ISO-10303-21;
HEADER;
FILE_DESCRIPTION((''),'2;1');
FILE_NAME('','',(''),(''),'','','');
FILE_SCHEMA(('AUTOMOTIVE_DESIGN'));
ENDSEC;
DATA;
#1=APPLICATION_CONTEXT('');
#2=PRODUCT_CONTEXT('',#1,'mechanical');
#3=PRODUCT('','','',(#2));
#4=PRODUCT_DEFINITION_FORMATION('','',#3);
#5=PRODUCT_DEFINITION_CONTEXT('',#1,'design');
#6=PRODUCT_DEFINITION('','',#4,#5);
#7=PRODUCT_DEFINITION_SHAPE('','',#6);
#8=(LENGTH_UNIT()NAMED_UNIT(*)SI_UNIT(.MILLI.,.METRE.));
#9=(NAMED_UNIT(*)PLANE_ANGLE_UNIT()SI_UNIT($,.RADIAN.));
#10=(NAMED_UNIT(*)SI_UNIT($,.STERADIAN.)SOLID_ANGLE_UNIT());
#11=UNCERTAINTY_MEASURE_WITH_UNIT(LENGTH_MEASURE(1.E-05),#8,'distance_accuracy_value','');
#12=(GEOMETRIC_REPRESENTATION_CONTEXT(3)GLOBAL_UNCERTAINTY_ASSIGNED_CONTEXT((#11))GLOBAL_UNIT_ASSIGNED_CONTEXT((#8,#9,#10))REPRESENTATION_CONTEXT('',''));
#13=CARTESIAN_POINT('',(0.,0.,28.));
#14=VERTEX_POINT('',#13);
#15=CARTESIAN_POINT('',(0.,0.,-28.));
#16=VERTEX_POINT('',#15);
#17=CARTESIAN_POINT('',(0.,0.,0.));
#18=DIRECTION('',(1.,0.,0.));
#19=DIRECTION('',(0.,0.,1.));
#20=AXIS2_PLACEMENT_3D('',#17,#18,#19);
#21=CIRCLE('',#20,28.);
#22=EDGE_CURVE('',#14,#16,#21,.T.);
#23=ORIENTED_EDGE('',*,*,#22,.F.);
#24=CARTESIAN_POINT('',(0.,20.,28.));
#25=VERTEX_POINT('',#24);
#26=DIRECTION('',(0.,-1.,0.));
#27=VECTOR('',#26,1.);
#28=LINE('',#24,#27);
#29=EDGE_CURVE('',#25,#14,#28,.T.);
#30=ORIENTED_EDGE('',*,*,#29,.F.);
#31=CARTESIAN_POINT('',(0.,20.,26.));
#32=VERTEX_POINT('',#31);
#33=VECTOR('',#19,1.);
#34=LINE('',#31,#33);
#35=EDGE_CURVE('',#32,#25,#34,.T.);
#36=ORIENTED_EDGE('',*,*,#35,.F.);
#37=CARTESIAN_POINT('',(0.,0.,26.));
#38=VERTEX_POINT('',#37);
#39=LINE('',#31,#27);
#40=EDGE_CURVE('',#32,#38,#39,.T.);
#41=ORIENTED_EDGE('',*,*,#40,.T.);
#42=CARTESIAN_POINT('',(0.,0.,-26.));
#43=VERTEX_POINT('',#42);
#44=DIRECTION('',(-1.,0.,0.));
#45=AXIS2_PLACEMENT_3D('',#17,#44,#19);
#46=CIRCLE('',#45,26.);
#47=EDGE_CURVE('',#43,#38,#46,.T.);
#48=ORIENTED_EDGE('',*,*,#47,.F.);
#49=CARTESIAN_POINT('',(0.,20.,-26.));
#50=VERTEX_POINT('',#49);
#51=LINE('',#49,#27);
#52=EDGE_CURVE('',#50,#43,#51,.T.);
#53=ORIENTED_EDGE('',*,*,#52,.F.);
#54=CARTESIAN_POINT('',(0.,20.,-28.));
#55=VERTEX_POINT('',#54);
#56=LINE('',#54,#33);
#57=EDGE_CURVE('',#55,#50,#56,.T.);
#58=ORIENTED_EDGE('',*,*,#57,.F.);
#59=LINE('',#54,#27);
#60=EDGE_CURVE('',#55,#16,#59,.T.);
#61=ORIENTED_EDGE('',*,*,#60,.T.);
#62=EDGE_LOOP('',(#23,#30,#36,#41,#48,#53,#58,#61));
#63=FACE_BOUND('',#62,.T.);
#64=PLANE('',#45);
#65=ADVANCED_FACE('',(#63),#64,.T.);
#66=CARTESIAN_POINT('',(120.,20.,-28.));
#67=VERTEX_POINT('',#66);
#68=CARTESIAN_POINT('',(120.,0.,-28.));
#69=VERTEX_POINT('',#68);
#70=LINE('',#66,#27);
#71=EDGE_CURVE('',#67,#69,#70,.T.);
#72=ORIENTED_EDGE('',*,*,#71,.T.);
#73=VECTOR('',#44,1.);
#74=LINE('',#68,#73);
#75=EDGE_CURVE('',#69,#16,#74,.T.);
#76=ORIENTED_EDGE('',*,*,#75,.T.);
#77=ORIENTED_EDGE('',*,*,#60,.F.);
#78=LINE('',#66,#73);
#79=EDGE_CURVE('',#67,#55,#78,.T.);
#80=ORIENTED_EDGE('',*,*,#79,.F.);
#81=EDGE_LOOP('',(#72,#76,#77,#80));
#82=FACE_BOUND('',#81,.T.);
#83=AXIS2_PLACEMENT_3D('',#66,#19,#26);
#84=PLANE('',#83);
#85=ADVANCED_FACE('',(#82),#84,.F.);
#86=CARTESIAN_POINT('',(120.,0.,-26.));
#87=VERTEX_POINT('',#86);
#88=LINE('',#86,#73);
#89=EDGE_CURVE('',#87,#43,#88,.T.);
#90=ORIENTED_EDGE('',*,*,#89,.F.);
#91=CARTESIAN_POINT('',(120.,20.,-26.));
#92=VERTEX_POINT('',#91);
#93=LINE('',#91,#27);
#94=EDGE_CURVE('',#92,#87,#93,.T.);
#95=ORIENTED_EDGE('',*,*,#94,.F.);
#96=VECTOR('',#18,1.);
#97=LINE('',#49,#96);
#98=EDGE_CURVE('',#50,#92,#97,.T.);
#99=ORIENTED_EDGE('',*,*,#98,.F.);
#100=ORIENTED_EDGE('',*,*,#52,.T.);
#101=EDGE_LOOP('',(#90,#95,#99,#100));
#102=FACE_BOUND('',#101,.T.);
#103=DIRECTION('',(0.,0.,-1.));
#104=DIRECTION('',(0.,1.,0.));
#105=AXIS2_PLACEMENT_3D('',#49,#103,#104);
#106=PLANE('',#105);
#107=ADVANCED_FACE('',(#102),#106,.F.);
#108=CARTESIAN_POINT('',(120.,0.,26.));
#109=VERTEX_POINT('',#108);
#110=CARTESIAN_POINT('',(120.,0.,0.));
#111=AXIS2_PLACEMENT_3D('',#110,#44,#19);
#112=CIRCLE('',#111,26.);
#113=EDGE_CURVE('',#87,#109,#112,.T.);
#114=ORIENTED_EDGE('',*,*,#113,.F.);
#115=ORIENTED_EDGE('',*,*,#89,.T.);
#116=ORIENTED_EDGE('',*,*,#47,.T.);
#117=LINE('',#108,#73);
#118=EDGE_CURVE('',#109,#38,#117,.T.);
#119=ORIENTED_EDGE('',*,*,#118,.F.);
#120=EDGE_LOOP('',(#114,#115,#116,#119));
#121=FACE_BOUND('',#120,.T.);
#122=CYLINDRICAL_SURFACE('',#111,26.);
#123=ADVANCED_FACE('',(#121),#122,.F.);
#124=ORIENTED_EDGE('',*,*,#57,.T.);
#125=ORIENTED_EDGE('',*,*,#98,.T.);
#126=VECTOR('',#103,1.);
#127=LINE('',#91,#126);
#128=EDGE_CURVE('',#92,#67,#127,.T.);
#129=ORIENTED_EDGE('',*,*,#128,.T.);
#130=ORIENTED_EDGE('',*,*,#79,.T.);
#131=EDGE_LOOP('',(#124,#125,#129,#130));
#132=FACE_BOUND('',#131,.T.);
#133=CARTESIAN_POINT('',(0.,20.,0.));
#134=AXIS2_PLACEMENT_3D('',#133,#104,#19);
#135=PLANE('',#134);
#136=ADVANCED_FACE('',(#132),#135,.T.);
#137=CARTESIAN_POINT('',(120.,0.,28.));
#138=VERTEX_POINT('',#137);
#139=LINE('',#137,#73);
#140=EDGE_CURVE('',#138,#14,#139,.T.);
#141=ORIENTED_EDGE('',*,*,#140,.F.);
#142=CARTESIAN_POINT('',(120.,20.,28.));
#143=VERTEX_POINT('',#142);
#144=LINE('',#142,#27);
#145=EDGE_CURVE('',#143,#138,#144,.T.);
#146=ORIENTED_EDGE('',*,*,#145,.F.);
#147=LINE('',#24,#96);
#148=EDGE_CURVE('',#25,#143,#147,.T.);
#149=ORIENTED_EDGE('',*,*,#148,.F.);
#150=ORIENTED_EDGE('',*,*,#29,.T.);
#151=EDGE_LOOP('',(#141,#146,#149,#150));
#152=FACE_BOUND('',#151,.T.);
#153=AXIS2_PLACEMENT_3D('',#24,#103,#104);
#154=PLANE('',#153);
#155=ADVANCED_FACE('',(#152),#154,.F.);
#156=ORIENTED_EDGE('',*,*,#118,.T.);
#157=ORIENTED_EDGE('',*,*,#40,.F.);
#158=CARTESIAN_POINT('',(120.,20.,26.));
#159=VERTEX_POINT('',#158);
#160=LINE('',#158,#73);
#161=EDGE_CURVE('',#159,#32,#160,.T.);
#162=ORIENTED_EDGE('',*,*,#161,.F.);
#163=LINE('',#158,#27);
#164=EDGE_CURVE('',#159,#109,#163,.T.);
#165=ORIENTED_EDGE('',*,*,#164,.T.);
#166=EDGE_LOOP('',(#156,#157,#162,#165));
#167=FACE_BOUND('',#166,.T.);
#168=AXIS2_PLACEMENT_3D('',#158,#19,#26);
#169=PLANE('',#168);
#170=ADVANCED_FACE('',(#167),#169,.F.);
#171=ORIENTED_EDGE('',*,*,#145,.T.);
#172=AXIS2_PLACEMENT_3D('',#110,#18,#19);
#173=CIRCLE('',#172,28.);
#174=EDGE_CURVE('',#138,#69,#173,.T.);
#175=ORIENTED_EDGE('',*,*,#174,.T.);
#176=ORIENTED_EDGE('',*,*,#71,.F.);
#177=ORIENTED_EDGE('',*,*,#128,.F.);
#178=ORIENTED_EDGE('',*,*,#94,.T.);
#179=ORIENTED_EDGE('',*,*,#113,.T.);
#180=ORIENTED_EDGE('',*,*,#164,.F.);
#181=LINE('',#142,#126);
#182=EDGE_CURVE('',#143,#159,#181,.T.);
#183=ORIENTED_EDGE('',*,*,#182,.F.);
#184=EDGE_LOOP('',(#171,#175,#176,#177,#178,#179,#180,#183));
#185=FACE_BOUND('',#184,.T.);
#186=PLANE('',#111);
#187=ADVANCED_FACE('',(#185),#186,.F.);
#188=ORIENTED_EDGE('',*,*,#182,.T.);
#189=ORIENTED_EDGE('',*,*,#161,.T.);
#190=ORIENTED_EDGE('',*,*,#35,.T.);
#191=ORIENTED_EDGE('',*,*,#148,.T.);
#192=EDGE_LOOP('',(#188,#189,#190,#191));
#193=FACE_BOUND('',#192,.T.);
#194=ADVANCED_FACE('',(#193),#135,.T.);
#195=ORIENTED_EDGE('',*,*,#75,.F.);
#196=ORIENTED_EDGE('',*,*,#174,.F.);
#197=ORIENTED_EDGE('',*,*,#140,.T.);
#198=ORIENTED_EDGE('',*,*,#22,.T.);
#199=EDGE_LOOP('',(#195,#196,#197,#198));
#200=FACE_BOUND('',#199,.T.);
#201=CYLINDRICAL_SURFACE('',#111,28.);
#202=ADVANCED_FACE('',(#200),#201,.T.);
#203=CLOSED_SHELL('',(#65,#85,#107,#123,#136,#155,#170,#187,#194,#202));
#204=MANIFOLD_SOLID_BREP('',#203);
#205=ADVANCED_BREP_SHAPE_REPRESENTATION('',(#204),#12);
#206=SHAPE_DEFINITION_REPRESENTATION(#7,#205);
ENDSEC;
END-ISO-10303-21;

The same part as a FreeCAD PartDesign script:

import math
import FreeCAD as App
import Part
import Sketcher
from FreeCAD import Vector
Q = App.Units.Quantity


def add_polygon(sketch, points):
    """Adds a closed chain of lines whose ends are joined by coincident constraints."""
    first, n = sketch.GeometryCount, len(points)
    for a, b in zip(points, points[1:] + points[:1]):
        sketch.addGeometry(Part.LineSegment(App.Vector(*a, 0), App.Vector(*b, 0)), False)
    for i in range(n):
        sketch.addConstraint(Sketcher.Constraint("Coincident", first + i, 2, first + (i + 1) % n, 1))

doc = App.newDocument("Part")
body = doc.addObject("PartDesign::Body", "Body")

sketch1 = body.newObject("Sketcher::SketchObject", "Sketch")
sketch1.AttachmentSupport = (doc.getObject("YZ_Plane"), [""])
sketch1.MapMode = "FlatFace"
sketch1.addGeometry(Part.LineSegment(Vector(0, -28, 0), Vector(0, -26, 0)), False)
sketch1.addGeometry(Part.ArcOfCircle(Part.Circle(Vector(0, 0, 0), Vector(0, 0, 1), 26), math.radians(90), math.radians(270)), False)
sketch1.addGeometry(Part.LineSegment(Vector(0, 26, 0), Vector(0, 28, 0)), False)
sketch1.addGeometry(Part.ArcOfCircle(Part.Circle(Vector(0, 0, 0), Vector(0, 0, 1), 28), math.radians(90), math.radians(270)), False)
sketch1.addConstraint(Sketcher.Constraint("Coincident", 0, 2, 1, 2))
sketch1.addConstraint(Sketcher.Constraint("Coincident", 1, 1, 2, 1))
sketch1.addConstraint(Sketcher.Constraint("Coincident", 2, 2, 3, 1))
sketch1.addConstraint(Sketcher.Constraint("Coincident", 3, 2, 0, 1))
sketch1.addConstraint(Sketcher.Constraint("Vertical", 0))
sketch1.addConstraint(Sketcher.Constraint("Vertical", 2))
sketch1.addConstraint(Sketcher.Constraint("Coincident", 1, 3, -1, 1))
sketch1.addConstraint(Sketcher.Constraint("Coincident", 3, 3, -1, 1))
sketch1.addConstraint(Sketcher.Constraint("PointOnObject", 0, 2, -2))
sketch1.addConstraint(Sketcher.Constraint("PointOnObject", 1, 1, -2))
sketch1.addConstraint(Sketcher.Constraint("Radius", 1, Q("26 mm")))
sketch1.addConstraint(Sketcher.Constraint("Radius", 3, Q("28 mm")))
pad1 = body.newObject("PartDesign::Pad", "Pad")
pad1.Profile = sketch1
pad1.Length = 120

sketch2 = body.newObject("Sketcher::SketchObject", "Sketch001")
sketch2.AttachmentSupport = (doc.getObject("XZ_Plane"), [""])
sketch2.MapMode = "FlatFace"
add_polygon(sketch2, [(0, -28), (0, -26), (120, -26), (120, -28)])
add_polygon(sketch2, [(0, 26), (0, 28), (120, 28), (120, 26)])
sketch2.addConstraint(Sketcher.Constraint("Vertical", 0))
sketch2.addConstraint(Sketcher.Constraint("Horizontal", 1))
sketch2.addConstraint(Sketcher.Constraint("Vertical", 2))
sketch2.addConstraint(Sketcher.Constraint("Horizontal", 3))
sketch2.addConstraint(Sketcher.Constraint("Vertical", 4))
sketch2.addConstraint(Sketcher.Constraint("Horizontal", 5))
sketch2.addConstraint(Sketcher.Constraint("Vertical", 6))
sketch2.addConstraint(Sketcher.Constraint("Horizontal", 7))
sketch2.addConstraint(Sketcher.Constraint("Symmetric", 3, 2, 4, 2, -1, 1))
sketch2.addConstraint(Sketcher.Constraint("Symmetric", 1, 2, 6, 2, -1))
sketch2.addConstraint(Sketcher.Constraint("PointOnObject", 0, 2, -2))
sketch2.addConstraint(Sketcher.Constraint("DistanceX", 1, 1, 1, 2, Q("120 mm")))
sketch2.addConstraint(Sketcher.Constraint("DistanceY", 0, 1, 0, 2, Q("2 mm")))
sketch2.addConstraint(Sketcher.Constraint("DistanceY", 0, 2, -1, 1, Q("26 mm")))
pad2 = body.newObject("PartDesign::Pad", "Pad001")
pad2.Profile = sketch2
pad2.Length = 20
pad2.Reversed = True

doc.recompute()
